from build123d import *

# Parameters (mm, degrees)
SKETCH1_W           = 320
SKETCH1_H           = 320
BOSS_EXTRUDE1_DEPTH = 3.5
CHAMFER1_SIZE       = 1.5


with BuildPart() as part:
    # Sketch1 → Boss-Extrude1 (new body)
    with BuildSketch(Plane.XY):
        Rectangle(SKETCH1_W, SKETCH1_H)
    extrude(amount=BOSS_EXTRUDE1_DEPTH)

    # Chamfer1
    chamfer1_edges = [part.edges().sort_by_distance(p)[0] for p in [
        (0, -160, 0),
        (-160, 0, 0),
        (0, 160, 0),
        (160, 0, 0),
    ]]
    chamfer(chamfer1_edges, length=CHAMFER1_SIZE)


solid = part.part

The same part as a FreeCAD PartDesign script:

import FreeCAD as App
import Part
import Sketcher


def edges_at(feature, points):
    """Names of the edges that pass closest to the given points."""
    edges = feature.Shape.Edges
    near = lambda p: min(range(len(edges)), key=lambda i: edges[i].distToShape(Part.Vertex(*p))[0])
    return sorted({f"Edge{near(p) + 1}" for p in points})


def add_polygon(sketch, points):
    """Adds a closed chain of lines whose ends are joined by coincident constraints."""
    first, n = sketch.GeometryCount, len(points)
    for a, b in zip(points, points[1:] + points[:1]):
        sketch.addGeometry(Part.LineSegment(App.Vector(*a, 0), App.Vector(*b, 0)), False)
    for i in range(n):
        sketch.addConstraint(Sketcher.Constraint("Coincident", first + i, 2, first + (i + 1) % n, 1))

doc = App.newDocument("Part")
params = doc.addObject("Spreadsheet::Sheet", "Params")
for row, (alias, value) in enumerate([
    ("sketch1_width", "320 mm"),
    ("pad1_length", "3.5 mm"),
    ("chamfer_size", "1.5 mm"),
], start=1):
    params.set(f"A{row}", alias)
    params.set(f"B{row}", "=" + value)
    params.setAlias(f"B{row}", alias)

body = doc.addObject("PartDesign::Body", "Body")

sketch1 = body.newObject("Sketcher::SketchObject", "Sketch")
sketch1.AttachmentSupport = (doc.getObject("XY_Plane"), [""])
sketch1.MapMode = "FlatFace"
add_polygon(sketch1, [(-160, 160), (-160, -160), (160, -160), (160, 160)])
sketch1.addConstraint(Sketcher.Constraint("Vertical", 0))
sketch1.addConstraint(Sketcher.Constraint("Horizontal", 1))
sketch1.addConstraint(Sketcher.Constraint("Vertical", 2))
sketch1.addConstraint(Sketcher.Constraint("Horizontal", 3))
sketch1.addConstraint(Sketcher.Constraint("Symmetric", 0, 2, 2, 2, -1, 1))
sketch1.addConstraint(Sketcher.Constraint("Equal", 3, 0))
sketch1.addConstraint(Sketcher.Constraint("DistanceX", 1, 1, 1, 2, 320.0))
sketch1.setExpression("Constraints[10]", "Params.sketch1_width")
pad1 = body.newObject("PartDesign::Pad", "Pad")
pad1.Profile = sketch1
pad1.setExpression("Length", "Params.pad1_length")
doc.recompute()

chamfer = body.newObject("PartDesign::Chamfer", "Chamfer")
chamfer.Base = (pad1, edges_at(pad1, [
    (0, -160, 0),
    (-160, 0, 0),
    (0, 160, 0),
    (160, 0, 0),
]))
chamfer.setExpression("Size", "Params.chamfer_size")

doc.recompute()
